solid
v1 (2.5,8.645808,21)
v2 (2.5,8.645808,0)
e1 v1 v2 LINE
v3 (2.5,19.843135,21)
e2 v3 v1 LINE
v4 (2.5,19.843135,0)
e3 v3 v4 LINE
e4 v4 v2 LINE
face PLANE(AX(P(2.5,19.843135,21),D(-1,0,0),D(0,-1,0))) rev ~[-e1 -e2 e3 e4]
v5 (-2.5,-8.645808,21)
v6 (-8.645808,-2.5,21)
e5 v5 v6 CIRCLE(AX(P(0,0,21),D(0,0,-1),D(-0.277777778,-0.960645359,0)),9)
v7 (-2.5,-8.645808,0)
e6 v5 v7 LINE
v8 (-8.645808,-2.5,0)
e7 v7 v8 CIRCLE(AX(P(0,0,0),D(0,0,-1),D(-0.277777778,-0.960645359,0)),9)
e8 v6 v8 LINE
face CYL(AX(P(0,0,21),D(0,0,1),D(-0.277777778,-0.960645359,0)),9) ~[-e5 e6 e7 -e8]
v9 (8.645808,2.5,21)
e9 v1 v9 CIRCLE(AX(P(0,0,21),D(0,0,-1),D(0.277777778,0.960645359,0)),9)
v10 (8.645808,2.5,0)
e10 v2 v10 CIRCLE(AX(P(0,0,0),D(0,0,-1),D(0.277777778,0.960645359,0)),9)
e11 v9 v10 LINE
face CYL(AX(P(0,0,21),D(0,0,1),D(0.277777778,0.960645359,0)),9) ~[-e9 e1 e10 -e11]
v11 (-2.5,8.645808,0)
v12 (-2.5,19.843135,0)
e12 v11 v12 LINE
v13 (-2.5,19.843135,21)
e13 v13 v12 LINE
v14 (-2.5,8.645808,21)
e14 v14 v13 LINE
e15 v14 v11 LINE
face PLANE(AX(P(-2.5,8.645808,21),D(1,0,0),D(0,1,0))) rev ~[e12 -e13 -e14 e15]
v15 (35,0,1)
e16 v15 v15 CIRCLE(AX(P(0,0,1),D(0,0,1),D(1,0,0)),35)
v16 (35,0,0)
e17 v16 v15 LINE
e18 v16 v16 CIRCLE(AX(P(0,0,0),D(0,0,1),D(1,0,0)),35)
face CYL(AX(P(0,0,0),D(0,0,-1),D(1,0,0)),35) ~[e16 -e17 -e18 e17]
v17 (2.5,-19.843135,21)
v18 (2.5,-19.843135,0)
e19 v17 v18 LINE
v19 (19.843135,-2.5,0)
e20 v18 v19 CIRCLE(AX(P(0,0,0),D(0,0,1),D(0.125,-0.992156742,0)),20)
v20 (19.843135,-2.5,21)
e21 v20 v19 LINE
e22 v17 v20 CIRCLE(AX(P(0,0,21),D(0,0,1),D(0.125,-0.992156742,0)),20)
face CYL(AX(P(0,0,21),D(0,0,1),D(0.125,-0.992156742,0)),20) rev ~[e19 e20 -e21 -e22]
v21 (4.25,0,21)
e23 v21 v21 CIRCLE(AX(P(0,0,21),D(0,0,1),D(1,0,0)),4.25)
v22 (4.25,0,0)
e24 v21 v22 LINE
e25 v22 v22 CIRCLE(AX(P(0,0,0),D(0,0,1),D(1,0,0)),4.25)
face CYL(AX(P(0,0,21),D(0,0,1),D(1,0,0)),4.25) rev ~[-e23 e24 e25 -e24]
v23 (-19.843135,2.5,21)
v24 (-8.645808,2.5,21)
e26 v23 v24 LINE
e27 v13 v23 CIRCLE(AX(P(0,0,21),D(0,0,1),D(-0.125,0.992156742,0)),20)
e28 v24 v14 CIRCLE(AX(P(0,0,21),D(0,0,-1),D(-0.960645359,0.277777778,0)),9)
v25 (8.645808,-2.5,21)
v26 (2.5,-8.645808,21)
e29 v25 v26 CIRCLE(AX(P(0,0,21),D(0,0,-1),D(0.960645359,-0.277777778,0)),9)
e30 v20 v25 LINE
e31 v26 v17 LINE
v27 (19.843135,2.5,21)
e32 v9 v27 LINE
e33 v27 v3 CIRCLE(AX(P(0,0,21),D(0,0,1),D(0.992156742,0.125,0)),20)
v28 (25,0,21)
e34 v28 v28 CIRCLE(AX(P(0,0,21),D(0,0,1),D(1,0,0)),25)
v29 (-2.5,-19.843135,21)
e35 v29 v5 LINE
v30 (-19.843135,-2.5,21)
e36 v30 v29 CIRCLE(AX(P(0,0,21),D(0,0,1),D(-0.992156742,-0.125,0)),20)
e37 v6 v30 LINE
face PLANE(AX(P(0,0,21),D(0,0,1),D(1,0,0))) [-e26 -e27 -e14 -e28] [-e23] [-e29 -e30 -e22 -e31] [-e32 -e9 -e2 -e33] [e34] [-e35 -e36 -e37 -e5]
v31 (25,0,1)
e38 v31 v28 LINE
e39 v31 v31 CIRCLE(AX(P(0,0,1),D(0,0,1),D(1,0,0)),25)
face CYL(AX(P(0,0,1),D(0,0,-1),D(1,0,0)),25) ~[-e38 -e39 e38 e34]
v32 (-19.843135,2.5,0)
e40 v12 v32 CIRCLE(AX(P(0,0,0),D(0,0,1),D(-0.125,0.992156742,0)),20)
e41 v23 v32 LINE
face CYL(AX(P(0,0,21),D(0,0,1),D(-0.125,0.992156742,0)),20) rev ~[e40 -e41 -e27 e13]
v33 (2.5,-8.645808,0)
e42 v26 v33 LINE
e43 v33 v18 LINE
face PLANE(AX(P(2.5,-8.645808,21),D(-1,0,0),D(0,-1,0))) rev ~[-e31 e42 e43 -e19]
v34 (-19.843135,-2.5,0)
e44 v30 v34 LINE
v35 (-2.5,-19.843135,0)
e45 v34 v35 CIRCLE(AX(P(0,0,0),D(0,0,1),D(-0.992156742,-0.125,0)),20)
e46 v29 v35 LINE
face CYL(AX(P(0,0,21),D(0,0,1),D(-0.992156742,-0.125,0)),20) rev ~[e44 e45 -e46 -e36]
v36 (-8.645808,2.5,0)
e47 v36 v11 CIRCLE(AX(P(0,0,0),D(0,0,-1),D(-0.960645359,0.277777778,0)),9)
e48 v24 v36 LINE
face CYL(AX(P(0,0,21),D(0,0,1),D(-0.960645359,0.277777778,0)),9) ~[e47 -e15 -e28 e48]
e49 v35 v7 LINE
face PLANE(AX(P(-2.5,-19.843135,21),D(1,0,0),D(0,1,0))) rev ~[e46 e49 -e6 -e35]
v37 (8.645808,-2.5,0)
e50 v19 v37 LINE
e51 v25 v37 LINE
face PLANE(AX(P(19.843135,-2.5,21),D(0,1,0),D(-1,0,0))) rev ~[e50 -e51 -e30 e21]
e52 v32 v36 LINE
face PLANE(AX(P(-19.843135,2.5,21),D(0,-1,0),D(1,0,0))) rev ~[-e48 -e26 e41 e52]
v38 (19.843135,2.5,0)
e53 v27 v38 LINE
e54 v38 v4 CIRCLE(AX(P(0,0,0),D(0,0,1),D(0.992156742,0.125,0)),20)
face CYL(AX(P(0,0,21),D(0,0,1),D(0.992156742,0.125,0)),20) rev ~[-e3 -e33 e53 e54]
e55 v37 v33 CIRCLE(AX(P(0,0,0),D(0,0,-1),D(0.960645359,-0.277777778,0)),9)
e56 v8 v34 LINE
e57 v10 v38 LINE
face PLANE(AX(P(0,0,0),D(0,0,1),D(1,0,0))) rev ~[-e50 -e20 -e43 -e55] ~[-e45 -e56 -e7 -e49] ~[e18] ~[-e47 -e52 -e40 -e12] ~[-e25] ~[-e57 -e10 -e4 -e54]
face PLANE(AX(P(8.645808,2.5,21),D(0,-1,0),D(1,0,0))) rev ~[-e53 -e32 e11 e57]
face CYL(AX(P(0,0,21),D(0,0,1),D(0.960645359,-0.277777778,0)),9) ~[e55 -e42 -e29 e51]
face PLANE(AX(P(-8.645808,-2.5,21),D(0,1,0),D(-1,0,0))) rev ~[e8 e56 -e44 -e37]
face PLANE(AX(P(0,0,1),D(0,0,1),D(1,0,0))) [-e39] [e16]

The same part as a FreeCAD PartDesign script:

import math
import FreeCAD as App
import Part
import Sketcher

V = App.Vector
Q = App.Units.Quantity

doc = App.newDocument("Part")
body = doc.addObject("PartDesign::Body", "Body")

sketch1 = body.newObject("Sketcher::SketchObject", "Sketch")
sketch1.AttachmentSupport = (doc.getObject("XY_Plane"), [""])
sketch1.MapMode = "FlatFace"
sketch1.addGeometry(Part.Circle(V(0, 0, 0), V(0, 0, 1), 35), False)
sketch1.addConstraint(Sketcher.Constraint("Coincident", 0, 3, -1, 1))
sketch1.addConstraint(Sketcher.Constraint("Diameter", 0, Q("70 mm")))
pad1 = body.newObject("PartDesign::Pad", "Pad")
pad1.Profile = sketch1
pad1.Length = 1

sketch2 = body.newObject("Sketcher::SketchObject", "Sketch001")
sketch2.AttachmentSupport = (doc.getObject("XY_Plane"), [""])
sketch2.MapMode = "FlatFace"
sketch2.AttachmentOffset = App.Placement(V(0, 0, 1), App.Rotation())
sketch2.addGeometry(Part.Circle(V(0, 0, 0), V(0, 0, 1), 25), False)
sketch2.addConstraint(Sketcher.Constraint("Coincident", 0, 3, -1, 1))
sketch2.addConstraint(Sketcher.Constraint("Diameter", 0, Q("50 mm")))
pad2 = body.newObject("PartDesign::Pad", "Pad001")
pad2.Profile = sketch2
pad2.Length = 20

sketch3 = body.newObject("Sketcher::SketchObject", "Sketch002")
sketch3.AttachmentSupport = (doc.getObject("XY_Plane"), [""])
sketch3.MapMode = "FlatFace"
sketch3.AttachmentOffset = App.Placement(V(0, 0, 21), App.Rotation())
sketch3.addGeometry(Part.ArcOfCircle(Part.Circle(V(0, 0, 0), V(0, 0, 1), 20), math.radians(-173), math.radians(-97)), False)
sketch3.addGeometry(Part.LineSegment(V(-2.5, -19.8, 0), V(-2.5, -8.6, 0)), False)
sketch3.addGeometry(Part.ArcOfCircle(Part.Circle(V(0, 0, 0), V(0, 0, 1), 9), math.radians(-164), math.radians(-106)), False)
sketch3.addGeometry(Part.LineSegment(V(-8.6, -2.5, 0), V(-19.8, -2.5, 0)), False)
sketch3.addGeometry(Part.LineSegment(V(-2.5, 8.6, 0), V(-2.5, 19.8, 0)), False)
sketch3.addGeometry(Part.ArcOfCircle(Part.Circle(V(0, 0, 0), V(0, 0, 1), 20), math.radians(97), math.radians(173)), False)
sketch3.addGeometry(Part.LineSegment(V(-19.8, 2.5, 0), V(-8.6, 2.5, 0)), False)
sketch3.addGeometry(Part.ArcOfCircle(Part.Circle(V(0, 0, 0), V(0, 0, 1), 9), math.radians(106), math.radians(164)), False)
sketch3.addGeometry(Part.LineSegment(V(8.6, 2.5, 0), V(19.8, 2.5, 0)), False)
sketch3.addGeometry(Part.ArcOfCircle(Part.Circle(V(0, 0, 0), V(0, 0, 1), 20), math.radians(7), math.radians(83)), False)
sketch3.addGeometry(Part.LineSegment(V(2.5, 19.8, 0), V(2.5, 8.6, 0)), False)
sketch3.addGeometry(Part.ArcOfCircle(Part.Circle(V(0, 0, 0), V(0, 0, 1), 9), math.radians(16), math.radians(74)), False)
sketch3.addGeometry(Part.ArcOfCircle(Part.Circle(V(0, 0, 0), V(0, 0, 1), 20), math.radians(-83), math.radians(-7)), False)
sketch3.addGeometry(Part.LineSegment(V(19.8, -2.5, 0), V(8.6, -2.5, 0)), False)
sketch3.addGeometry(Part.ArcOfCircle(Part.Circle(V(0, 0, 0), V(0, 0, 1), 9), math.radians(-74), math.radians(-16)), False)
sketch3.addGeometry(Part.LineSegment(V(2.5, -8.6, 0), V(2.5, -19.8, 0)), False)
sketch3.addGeometry(Part.Circle(V(0, 0, 0), V(0, 0, 1), 4.2), False)
sketch3.addConstraint(Sketcher.Constraint("Coincident", 0, 2, 1, 1))
sketch3.addConstraint(Sketcher.Constraint("Coincident", 1, 2, 2, 2))
sketch3.addConstraint(Sketcher.Constraint("Coincident", 2, 1, 3, 1))
sketch3.addConstraint(Sketcher.Constraint("Coincident", 3, 2, 0, 1))
sketch3.addConstraint(Sketcher.Constraint("Coincident", 4, 2, 5, 1))
sketch3.addConstraint(Sketcher.Constraint("Coincident", 5, 2, 6, 1))
sketch3.addConstraint(Sketcher.Constraint("Coincident", 6, 2, 7, 2))
sketch3.addConstraint(Sketcher.Constraint("Coincident", 7, 1, 4, 1))
sketch3.addConstraint(Sketcher.Constraint("Coincident", 8, 2, 9, 1))
sketch3.addConstraint(Sketcher.Constraint("Coincident", 9, 2, 10, 1))
sketch3.addConstraint(Sketcher.Constraint("Coincident", 10, 2, 11, 2))
sketch3.addConstraint(Sketcher.Constraint("Coincident", 11, 1, 8, 1))
sketch3.addConstraint(Sketcher.Constraint("Coincident", 12, 2, 13, 1))
sketch3.addConstraint(Sketcher.Constraint("Coincident", 13, 2, 14, 2))
sketch3.addConstraint(Sketcher.Constraint("Coincident", 14, 1, 15, 1))
sketch3.addConstraint(Sketcher.Constraint("Coincident", 15, 2, 12, 1))
sketch3.addConstraint(Sketcher.Constraint("Vertical", 1))
sketch3.addConstraint(Sketcher.Constraint("Horizontal", 3))
sketch3.addConstraint(Sketcher.Constraint("Vertical", 4))
sketch3.addConstraint(Sketcher.Constraint("Horizontal", 6))
sketch3.addConstraint(Sketcher.Constraint("Horizontal", 8))
sketch3.addConstraint(Sketcher.Constraint("Vertical", 10))
sketch3.addConstraint(Sketcher.Constraint("Horizontal", 13))
sketch3.addConstraint(Sketcher.Constraint("Vertical", 15))
sketch3.addConstraint(Sketcher.Constraint("Coincident", 0, 3, -1, 1))
sketch3.addConstraint(Sketcher.Constraint("Coincident", 2, 3, -1, 1))
sketch3.addConstraint(Sketcher.Constraint("Coincident", 5, 3, -1, 1))
sketch3.addConstraint(Sketcher.Constraint("Coincident", 7, 3, -1, 1))
sketch3.addConstraint(Sketcher.Constraint("Coincident", 9, 3, -1, 1))
sketch3.addConstraint(Sketcher.Constraint("Coincident", 11, 3, -1, 1))
sketch3.addConstraint(Sketcher.Constraint("Coincident", 12, 3, -1, 1))
sketch3.addConstraint(Sketcher.Constraint("Coincident", 14, 3, -1, 1))
sketch3.addConstraint(Sketcher.Constraint("Coincident", 16, 3, -1, 1))
sketch3.addConstraint(Sketcher.Constraint("Equal", 0, 5))
sketch3.addConstraint(Sketcher.Constraint("Equal", 2, 7))
sketch3.addConstraint(Sketcher.Constraint("Equal", 5, 9))
sketch3.addConstraint(Sketcher.Constraint("Equal", 7, 11))
sketch3.addConstraint(Sketcher.Constraint("Equal", 9, 12))
sketch3.addConstraint(Sketcher.Constraint("Equal", 11, 14))
sketch3.addConstraint(Sketcher.Constraint("Horizontal", 6, 2, 8, 2))
sketch3.addConstraint(Sketcher.Constraint("Horizontal", 4, 2, 9, 2))
sketch3.addConstraint(Sketcher.Constraint("Horizontal", 3, 2, 12, 2))
sketch3.addConstraint(Sketcher.Constraint("Horizontal", 1, 2, 14, 1))
sketch3.addConstraint(Sketcher.Constraint("Vertical", 1, 2, 4, 2))
sketch3.addConstraint(Sketcher.Constraint("Vertical", 3, 2, 5, 2))
sketch3.addConstraint(Sketcher.Constraint("Equal", 13, 1))
sketch3.addConstraint(Sketcher.Constraint("Radius", 0, Q("20 mm")))
sketch3.addConstraint(Sketcher.Constraint("Radius", 2, Q("9 mm")))
sketch3.addConstraint(Sketcher.Constraint("Diameter", 16, Q("8.5 mm")))
sketch3.addConstraint(Sketcher.Constraint("DistanceY", 3, 2, 5, 2, Q("5 mm")))
pocket1 = body.newObject("PartDesign::Pocket", "Pocket")
pocket1.Profile = sketch3
pocket1.Type = "ThroughAll"

doc.recompute()
